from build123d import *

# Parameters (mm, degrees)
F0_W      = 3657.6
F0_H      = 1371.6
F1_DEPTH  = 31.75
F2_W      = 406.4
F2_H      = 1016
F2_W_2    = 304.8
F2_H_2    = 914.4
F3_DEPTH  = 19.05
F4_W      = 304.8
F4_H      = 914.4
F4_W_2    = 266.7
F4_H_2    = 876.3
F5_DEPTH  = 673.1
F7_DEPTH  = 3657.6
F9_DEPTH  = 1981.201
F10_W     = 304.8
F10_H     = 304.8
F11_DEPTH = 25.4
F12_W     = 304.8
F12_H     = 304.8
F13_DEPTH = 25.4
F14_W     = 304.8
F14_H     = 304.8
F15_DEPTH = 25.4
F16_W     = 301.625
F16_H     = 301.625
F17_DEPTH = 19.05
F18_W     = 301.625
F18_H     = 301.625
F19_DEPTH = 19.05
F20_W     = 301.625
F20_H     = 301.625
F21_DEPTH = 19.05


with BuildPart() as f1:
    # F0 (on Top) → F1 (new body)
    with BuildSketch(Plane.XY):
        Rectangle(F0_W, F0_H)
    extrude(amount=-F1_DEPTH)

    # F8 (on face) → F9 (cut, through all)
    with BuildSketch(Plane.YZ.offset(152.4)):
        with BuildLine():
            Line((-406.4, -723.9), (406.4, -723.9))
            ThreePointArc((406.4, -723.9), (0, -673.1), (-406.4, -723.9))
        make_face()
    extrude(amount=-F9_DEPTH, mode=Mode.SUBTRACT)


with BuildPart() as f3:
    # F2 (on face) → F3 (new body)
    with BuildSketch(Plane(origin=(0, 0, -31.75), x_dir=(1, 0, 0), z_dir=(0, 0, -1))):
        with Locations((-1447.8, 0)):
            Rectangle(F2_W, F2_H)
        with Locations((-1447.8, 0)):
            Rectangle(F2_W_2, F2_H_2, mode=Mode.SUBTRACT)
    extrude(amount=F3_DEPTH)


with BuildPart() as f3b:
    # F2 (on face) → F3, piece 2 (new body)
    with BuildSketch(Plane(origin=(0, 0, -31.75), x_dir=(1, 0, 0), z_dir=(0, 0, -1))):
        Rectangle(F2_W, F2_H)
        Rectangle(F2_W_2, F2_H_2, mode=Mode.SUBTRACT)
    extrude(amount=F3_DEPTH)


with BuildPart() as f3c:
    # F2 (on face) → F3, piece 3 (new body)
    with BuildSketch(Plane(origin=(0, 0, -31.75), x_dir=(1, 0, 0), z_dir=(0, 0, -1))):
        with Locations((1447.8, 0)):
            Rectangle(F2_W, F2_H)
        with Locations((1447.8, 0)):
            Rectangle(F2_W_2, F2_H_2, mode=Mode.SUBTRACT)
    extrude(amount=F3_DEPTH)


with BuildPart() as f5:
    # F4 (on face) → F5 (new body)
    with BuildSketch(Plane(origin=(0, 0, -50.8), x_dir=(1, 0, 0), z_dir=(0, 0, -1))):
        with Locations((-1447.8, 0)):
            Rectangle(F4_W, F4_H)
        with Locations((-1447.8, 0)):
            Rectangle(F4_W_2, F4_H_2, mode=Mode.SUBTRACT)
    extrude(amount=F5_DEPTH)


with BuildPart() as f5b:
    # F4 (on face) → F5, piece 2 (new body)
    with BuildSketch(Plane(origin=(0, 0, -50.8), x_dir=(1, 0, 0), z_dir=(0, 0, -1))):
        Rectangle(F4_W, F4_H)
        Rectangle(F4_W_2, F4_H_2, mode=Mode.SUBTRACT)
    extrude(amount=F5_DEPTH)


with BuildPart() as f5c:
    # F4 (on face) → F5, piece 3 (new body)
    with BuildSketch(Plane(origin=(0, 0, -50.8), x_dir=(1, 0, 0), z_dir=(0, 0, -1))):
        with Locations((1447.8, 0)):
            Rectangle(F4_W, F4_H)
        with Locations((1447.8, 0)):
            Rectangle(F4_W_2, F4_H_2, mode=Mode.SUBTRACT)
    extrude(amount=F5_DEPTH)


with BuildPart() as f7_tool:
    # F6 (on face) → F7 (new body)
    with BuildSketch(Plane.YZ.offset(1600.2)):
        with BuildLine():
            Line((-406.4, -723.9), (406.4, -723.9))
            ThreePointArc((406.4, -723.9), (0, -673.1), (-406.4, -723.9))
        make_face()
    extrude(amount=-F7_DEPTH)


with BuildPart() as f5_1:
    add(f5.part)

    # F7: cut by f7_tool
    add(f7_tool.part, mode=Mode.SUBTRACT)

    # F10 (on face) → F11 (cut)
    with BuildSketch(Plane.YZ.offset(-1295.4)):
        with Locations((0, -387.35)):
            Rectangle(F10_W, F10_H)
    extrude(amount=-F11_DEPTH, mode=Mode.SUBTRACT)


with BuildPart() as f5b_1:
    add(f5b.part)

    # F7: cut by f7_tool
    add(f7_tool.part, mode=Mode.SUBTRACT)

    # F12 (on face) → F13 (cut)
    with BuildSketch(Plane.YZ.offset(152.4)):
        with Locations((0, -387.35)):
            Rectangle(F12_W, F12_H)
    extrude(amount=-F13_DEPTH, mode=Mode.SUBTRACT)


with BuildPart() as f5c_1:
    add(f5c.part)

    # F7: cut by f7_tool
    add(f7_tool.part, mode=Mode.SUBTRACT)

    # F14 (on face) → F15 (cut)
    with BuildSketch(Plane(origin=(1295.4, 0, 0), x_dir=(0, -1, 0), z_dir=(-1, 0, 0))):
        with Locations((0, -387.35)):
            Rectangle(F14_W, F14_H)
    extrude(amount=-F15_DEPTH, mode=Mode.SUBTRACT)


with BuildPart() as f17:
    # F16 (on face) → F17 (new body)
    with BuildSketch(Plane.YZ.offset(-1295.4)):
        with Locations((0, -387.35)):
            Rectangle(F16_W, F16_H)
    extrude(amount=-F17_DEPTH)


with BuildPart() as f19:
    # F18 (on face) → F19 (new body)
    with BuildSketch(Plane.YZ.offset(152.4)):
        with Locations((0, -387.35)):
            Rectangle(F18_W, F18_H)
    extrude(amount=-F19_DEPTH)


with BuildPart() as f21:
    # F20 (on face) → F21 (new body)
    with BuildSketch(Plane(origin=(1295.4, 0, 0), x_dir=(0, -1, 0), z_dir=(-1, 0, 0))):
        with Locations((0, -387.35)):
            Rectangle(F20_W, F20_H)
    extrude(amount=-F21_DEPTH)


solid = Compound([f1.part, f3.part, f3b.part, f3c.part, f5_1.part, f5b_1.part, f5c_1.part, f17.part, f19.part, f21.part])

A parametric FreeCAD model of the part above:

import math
import FreeCAD as App
import Part
import Sketcher
from FreeCAD import Vector
Q = App.Units.Quantity


def add_polygon(sketch, points):
    """Adds a closed chain of lines whose ends are joined by coincident constraints."""
    first, n = sketch.GeometryCount, len(points)
    for a, b in zip(points, points[1:] + points[:1]):
        sketch.addGeometry(Part.LineSegment(App.Vector(*a, 0), App.Vector(*b, 0)), False)
    for i in range(n):
        sketch.addConstraint(Sketcher.Constraint("Coincident", first + i, 2, first + (i + 1) % n, 1))

doc = App.newDocument("Part")
params = doc.addObject("Spreadsheet::Sheet", "Params")
for row, (alias, value) in enumerate([
    ("sketch1_width", "144 in"),
    ("sketch1_height", "54 in"),
    ("pad1_length", "1.25 in"),
    ("sketch2_radius", "65 in"),
    ("sketch2_width", "32 in"),
    ("sketch3_width", "16 in"),
    ("sketch3_width2", "12 in"),
    ("sketch3_height", "40 in"),
    ("sketch3_height2", "36 in"),
    ("pad2_length", "0.75 in"),
    ("sketch4_width", "16 in"),
    ("sketch4_width2", "12 in"),
    ("sketch4_height", "40 in"),
    ("sketch4_height2", "36 in"),
    ("pad3_length", "0.75 in"),
    ("sketch5_width", "16 in"),
    ("sketch5_width2", "12 in"),
    ("sketch5_height", "40 in"),
    ("sketch5_height2", "36 in"),
    ("pad4_length", "0.75 in"),
    ("sketch6_width", "12 in"),
    ("sketch6_height", "36 in"),
    ("sketch6_width2", "10.5 in"),
    ("sketch6_height2", "34.5 in"),
    ("pad5_length", "26.5 in"),
    ("sketch7_width", "12 in"),
    ("sketch7_height", "36 in"),
    ("sketch7_width2", "10.5 in"),
    ("sketch7_height2", "34.5 in"),
    ("pad6_length", "26.5 in"),
    ("sketch8_width", "12 in"),
    ("sketch8_height", "36 in"),
    ("sketch8_width2", "10.5 in"),
    ("sketch8_height2", "34.5 in"),
    ("pad7_length", "26.5 in"),
    ("sketch9_radius", "65 in"),
    ("sketch9_width", "32 in"),
    ("pad8_length", "144 in"),
    ("sketch10_width", "12 in"),
    ("pocket2_length", "1 in"),
    ("sketch11_width", "12 in"),
    ("pocket3_length", "1 in"),
    ("sketch12_width", "12 in"),
    ("pocket4_length", "1 in"),
    ("sketch13_width", "11.875 in"),
    ("pad9_length", "0.75 in"),
    ("sketch14_width", "11.875 in"),
    ("pad10_length", "0.75 in"),
    ("sketch15_width", "11.875 in"),
    ("pad11_length", "0.75 in"),
], start=1):
    params.set(f"A{row}", alias)
    params.set(f"B{row}", "=" + value)
    params.setAlias(f"B{row}", alias)

body = doc.addObject("PartDesign::Body", "Body")

sketch1 = doc.addObject("Sketcher::SketchObject", "Sketch")
body.addObject(sketch1)
sketch1.AttachmentSupport = (doc.XY_Plane, [""])
sketch1.MapMode = "FlatFace"
add_polygon(sketch1, [(-1829, 686), (-1829, -686), (1829, -686), (1829, 686)])
sketch1.addConstraint(Sketcher.Constraint("Vertical", 0))
sketch1.addConstraint(Sketcher.Constraint("Horizontal", 1))
sketch1.addConstraint(Sketcher.Constraint("Vertical", 2))
sketch1.addConstraint(Sketcher.Constraint("Horizontal", 3))
sketch1.addConstraint(Sketcher.Constraint("Symmetric", 0, 2, 2, 2, -1, 1))
sketch1.addConstraint(Sketcher.Constraint("DistanceX", 1, 1, 1, 2, Q("144 in")))
sketch1.addConstraint(Sketcher.Constraint("DistanceY", 0, 2, 0, 1, Q("54 in")))
sketch1.setExpression("Constraints[9]", "Params.sketch1_width")
sketch1.setExpression("Constraints[10]", "Params.sketch1_height")
pad1 = doc.addObject("PartDesign::Pad", "Pad")
body.addObject(pad1)
pad1.Profile = sketch1
pad1.setExpression("Length", "Params.pad1_length")
pad1.Reversed = True

sketch2 = doc.addObject("Sketcher::SketchObject", "Sketch001")
body.addObject(sketch2)
sketch2.AttachmentSupport = (doc.YZ_Plane, [""])
sketch2.MapMode = "FlatFace"
sketch2.AttachmentOffset = App.Placement(Vector(0, 0, 6 * 25.4), App.Rotation())
sketch2.addGeometry(Part.LineSegment(Vector(-406, -724, 0), Vector(406, -724, 0)), False)
sketch2.addGeometry(Part.ArcOfCircle(Part.Circle(Vector(0, -2324, 0), Vector(0, 0, 1), 1651), math.radians(76), math.radians(104)), False)
sketch2.addConstraint(Sketcher.Constraint("Coincident", 0, 1, 1, 2))
sketch2.addConstraint(Sketcher.Constraint("Coincident", 1, 1, 0, 2))
sketch2.addConstraint(Sketcher.Constraint("Horizontal", 0))
sketch2.addConstraint(Sketcher.Constraint("PointOnObject", 1, 3, -2))
sketch2.addConstraint(Sketcher.Constraint("Radius", 1, Q("65 in")))
sketch2.addConstraint(Sketcher.Constraint("DistanceX", 0, 1, 0, 2, Q("32 in")))
sketch2.addConstraint(Sketcher.Constraint("DistanceY", 1, 3, -1, 1, Q("91.5 in")))
sketch2.setExpression("Constraints[4]", "Params.sketch2_radius")
sketch2.setExpression("Constraints[5]", "Params.sketch2_width")
pocket1 = doc.addObject("PartDesign::Pocket", "Pocket")
body.addObject(pocket1)
pocket1.Profile = sketch2
pocket1.Type = "ThroughAll"
body2 = doc.addObject("PartDesign::Body", "Body001")

sketch3 = doc.addObject("Sketcher::SketchObject", "Sketch002")
body2.addObject(sketch3)
sketch3.AttachmentSupport = (doc.getObject("XY_Plane001"), [""])
sketch3.MapMode = "FlatFace"
sketch3.AttachmentOffset = App.Placement(Vector(0, 0, -1.25 * 25.4), App.Rotation())
add_polygon(sketch3, [(-1651, -508), (-1651, 508), (-1245, 508), (-1245, -508)])
add_polygon(sketch3, [(-1295, 457), (-1600, 457), (-1600, -457), (-1295, -457)])
sketch3.addConstraint(Sketcher.Constraint("Vertical", 0))
sketch3.addConstraint(Sketcher.Constraint("Horizontal", 1))
sketch3.addConstraint(Sketcher.Constraint("Vertical", 2))
sketch3.addConstraint(Sketcher.Constraint("Horizontal", 3))
sketch3.addConstraint(Sketcher.Constraint("Horizontal", 4))
sketch3.addConstraint(Sketcher.Constraint("Vertical", 5))
sketch3.addConstraint(Sketcher.Constraint("Horizontal", 6))
sketch3.addConstraint(Sketcher.Constraint("Vertical", 7))
sketch3.addConstraint(Sketcher.Constraint("DistanceX", 1, 1, 1, 2, Q("16 in")))
sketch3.addConstraint(Sketcher.Constraint("DistanceX", 4, 2, 4, 1, Q("12 in")))
sketch3.addConstraint(Sketcher.Constraint("DistanceY", 0, 1, 0, 2, Q("40 in")))
sketch3.addConstraint(Sketcher.Constraint("DistanceY", 5, 2, 5, 1, Q("36 in")))
sketch3.addConstraint(Sketcher.Constraint("DistanceX", 0, 2, -1, 1, Q("65 in")))
sketch3.addConstraint(Sketcher.Constraint("DistanceY", -1, 1, 0, 2, Q("20 in")))
sketch3.addConstraint(Sketcher.Constraint("DistanceX", 4, 2, -1, 1, Q("63 in")))
sketch3.addConstraint(Sketcher.Constraint("DistanceY", -1, 1, 4, 2, Q("18 in")))
sketch3.setExpression("Constraints[16]", "Params.sketch3_width")
sketch3.setExpression("Constraints[17]", "Params.sketch3_width2")
sketch3.setExpression("Constraints[18]", "Params.sketch3_height")
sketch3.setExpression("Constraints[19]", "Params.sketch3_height2")
pad2 = doc.addObject("PartDesign::Pad", "Pad001")
body2.addObject(pad2)
pad2.Profile = sketch3
pad2.setExpression("Length", "Params.pad2_length")
pad2.Reversed = True
body3 = doc.addObject("PartDesign::Body", "Body002")

sketch4 = doc.addObject("Sketcher::SketchObject", "Sketch003")
body3.addObject(sketch4)
sketch4.AttachmentSupport = (doc.getObject("XY_Plane002"), [""])
sketch4.MapMode = "FlatFace"
sketch4.AttachmentOffset = App.Placement(Vector(0, 0, -1.25 * 25.4), App.Rotation())
add_polygon(sketch4, [(-203, -508), (-203, 508), (203, 508), (203, -508)])
add_polygon(sketch4, [(152, 457), (-152, 457), (-152, -457), (152, -457)])
sketch4.addConstraint(Sketcher.Constraint("Vertical", 0))
sketch4.addConstraint(Sketcher.Constraint("Horizontal", 1))
sketch4.addConstraint(Sketcher.Constraint("Vertical", 2))
sketch4.addConstraint(Sketcher.Constraint("Horizontal", 3))
sketch4.addConstraint(Sketcher.Constraint("Horizontal", 4))
sketch4.addConstraint(Sketcher.Constraint("Vertical", 5))
sketch4.addConstraint(Sketcher.Constraint("Horizontal", 6))
sketch4.addConstraint(Sketcher.Constraint("Vertical", 7))
sketch4.addConstraint(Sketcher.Constraint("Symmetric", 0, 2, 2, 2, -1, 1))
sketch4.addConstraint(Sketcher.Constraint("Symmetric", 4, 2, 6, 2, -1, 1))
sketch4.addConstraint(Sketcher.Constraint("DistanceX", 1, 1, 1, 2, Q("16 in")))
sketch4.addConstraint(Sketcher.Constraint("DistanceX", 4, 2, 4, 1, Q("12 in")))
sketch4.addConstraint(Sketcher.Constraint("DistanceY", 0, 1, 0, 2, Q("40 in")))
sketch4.addConstraint(Sketcher.Constraint("DistanceY", 5, 2, 5, 1, Q("36 in")))
sketch4.setExpression("Constraints[18]", "Params.sketch4_width")
sketch4.setExpression("Constraints[19]", "Params.sketch4_width2")
sketch4.setExpression("Constraints[20]", "Params.sketch4_height")
sketch4.setExpression("Constraints[21]", "Params.sketch4_height2")
pad3 = doc.addObject("PartDesign::Pad", "Pad002")
body3.addObject(pad3)
pad3.Profile = sketch4
pad3.setExpression("Length", "Params.pad3_length")
pad3.Reversed = True
body4 = doc.addObject("PartDesign::Body", "Body003")

sketch5 = doc.addObject("Sketcher::SketchObject", "Sketch004")
body4.addObject(sketch5)
sketch5.AttachmentSupport = (doc.getObject("XY_Plane003"), [""])
sketch5.MapMode = "FlatFace"
sketch5.AttachmentOffset = App.Placement(Vector(0, 0, -1.25 * 25.4), App.Rotation())
add_polygon(sketch5, [(1245, -508), (1245, 508), (1651, 508), (1651, -508)])
add_polygon(sketch5, [(1600, 457), (1295, 457), (1295, -457), (1600, -457)])
sketch5.addConstraint(Sketcher.Constraint("Vertical", 0))
sketch5.addConstraint(Sketcher.Constraint("Horizontal", 1))
sketch5.addConstraint(Sketcher.Constraint("Vertical", 2))
sketch5.addConstraint(Sketcher.Constraint("Horizontal", 3))
sketch5.addConstraint(Sketcher.Constraint("Horizontal", 4))
sketch5.addConstraint(Sketcher.Constraint("Vertical", 5))
sketch5.addConstraint(Sketcher.Constraint("Horizontal", 6))
sketch5.addConstraint(Sketcher.Constraint("Vertical", 7))
sketch5.addConstraint(Sketcher.Constraint("DistanceX", 1, 1, 1, 2, Q("16 in")))
sketch5.addConstraint(Sketcher.Constraint("DistanceX", 4, 2, 4, 1, Q("12 in")))
sketch5.addConstraint(Sketcher.Constraint("DistanceY", 0, 1, 0, 2, Q("40 in")))
sketch5.addConstraint(Sketcher.Constraint("DistanceY", 5, 2, 5, 1, Q("36 in")))
sketch5.addConstraint(Sketcher.Constraint("DistanceX", -1, 1, 0, 2, Q("49 in")))
sketch5.addConstraint(Sketcher.Constraint("DistanceY", -1, 1, 0, 2, Q("20 in")))
sketch5.addConstraint(Sketcher.Constraint("DistanceX", -1, 1, 4, 2, Q("51 in")))
sketch5.addConstraint(Sketcher.Constraint("DistanceY", -1, 1, 4, 2, Q("18 in")))
sketch5.setExpression("Constraints[16]", "Params.sketch5_width")
sketch5.setExpression("Constraints[17]", "Params.sketch5_width2")
sketch5.setExpression("Constraints[18]", "Params.sketch5_height")
sketch5.setExpression("Constraints[19]", "Params.sketch5_height2")
pad4 = doc.addObject("PartDesign::Pad", "Pad003")
body4.addObject(pad4)
pad4.Profile = sketch5
pad4.setExpression("Length", "Params.pad4_length")
pad4.Reversed = True
body5 = doc.addObject("PartDesign::Body", "Body004")

sketch6 = doc.addObject("Sketcher::SketchObject", "Sketch005")
body5.addObject(sketch6)
sketch6.AttachmentSupport = (doc.getObject("XY_Plane004"), [""])
sketch6.MapMode = "FlatFace"
sketch6.AttachmentOffset = App.Placement(Vector(0, 0, -2 * 25.4), App.Rotation())
add_polygon(sketch6, [(-1600, -457), (-1600, 457), (-1295, 457), (-1295, -457)])
add_polygon(sketch6, [(-1314, 438), (-1581, 438), (-1581, -438), (-1314, -438)])
sketch6.addConstraint(Sketcher.Constraint("Vertical", 0))
sketch6.addConstraint(Sketcher.Constraint("Horizontal", 1))
sketch6.addConstraint(Sketcher.Constraint("Vertical", 2))
sketch6.addConstraint(Sketcher.Constraint("Horizontal", 3))
sketch6.addConstraint(Sketcher.Constraint("Horizontal", 4))
sketch6.addConstraint(Sketcher.Constraint("Vertical", 5))
sketch6.addConstraint(Sketcher.Constraint("Horizontal", 6))
sketch6.addConstraint(Sketcher.Constraint("Vertical", 7))
sketch6.addConstraint(Sketcher.Constraint("DistanceX", 1, 1, 1, 2, Q("12 in")))
sketch6.addConstraint(Sketcher.Constraint("DistanceY", 0, 1, 0, 2, Q("36 in")))
sketch6.addConstraint(Sketcher.Constraint("DistanceX", 4, 2, 4, 1, Q("10.5 in")))
sketch6.addConstraint(Sketcher.Constraint("DistanceY", 5, 2, 5, 1, Q("34.5 in")))
sketch6.addConstraint(Sketcher.Constraint("DistanceX", 0, 2, -1, 1, Q("63 in")))
sketch6.addConstraint(Sketcher.Constraint("DistanceY", -1, 1, 0, 2, Q("18 in")))
sketch6.addConstraint(Sketcher.Constraint("DistanceX", 4, 2, -1, 1, Q("62.25 in")))
sketch6.addConstraint(Sketcher.Constraint("DistanceY", -1, 1, 4, 2, Q("17.25 in")))
sketch6.setExpression("Constraints[16]", "Params.sketch6_width")
sketch6.setExpression("Constraints[17]", "Params.sketch6_height")
sketch6.setExpression("Constraints[18]", "Params.sketch6_width2")
sketch6.setExpression("Constraints[19]", "Params.sketch6_height2")
pad5 = doc.addObject("PartDesign::Pad", "Pad004")
body5.addObject(pad5)
pad5.Profile = sketch6
pad5.setExpression("Length", "Params.pad5_length")
pad5.Reversed = True
body6 = doc.addObject("PartDesign::Body", "Body005")

sketch7 = doc.addObject("Sketcher::SketchObject", "Sketch006")
body6.addObject(sketch7)
sketch7.AttachmentSupport = (doc.getObject("XY_Plane005"), [""])
sketch7.MapMode = "FlatFace"
sketch7.AttachmentOffset = App.Placement(Vector(0, 0, -2 * 25.4), App.Rotation())
add_polygon(sketch7, [(-152, -457), (-152, 457), (152, 457), (152, -457)])
add_polygon(sketch7, [(133, 438), (-133, 438), (-133, -438), (133, -438)])
sketch7.addConstraint(Sketcher.Constraint("Vertical", 0))
sketch7.addConstraint(Sketcher.Constraint("Horizontal", 1))
sketch7.addConstraint(Sketcher.Constraint("Vertical", 2))
sketch7.addConstraint(Sketcher.Constraint("Horizontal", 3))
sketch7.addConstraint(Sketcher.Constraint("Horizontal", 4))
sketch7.addConstraint(Sketcher.Constraint("Vertical", 5))
sketch7.addConstraint(Sketcher.Constraint("Horizontal", 6))
sketch7.addConstraint(Sketcher.Constraint("Vertical", 7))
sketch7.addConstraint(Sketcher.Constraint("Symmetric", 0, 2, 2, 2, -1, 1))
sketch7.addConstraint(Sketcher.Constraint("Symmetric", 4, 2, 6, 2, -1, 1))
sketch7.addConstraint(Sketcher.Constraint("DistanceX", 1, 1, 1, 2, Q("12 in")))
sketch7.addConstraint(Sketcher.Constraint("DistanceY", 0, 1, 0, 2, Q("36 in")))
sketch7.addConstraint(Sketcher.Constraint("DistanceX", 4, 2, 4, 1, Q("10.5 in")))
sketch7.addConstraint(Sketcher.Constraint("DistanceY", 5, 2, 5, 1, Q("34.5 in")))
sketch7.setExpression("Constraints[18]", "Params.sketch7_width")
sketch7.setExpression("Constraints[19]", "Params.sketch7_height")
sketch7.setExpression("Constraints[20]", "Params.sketch7_width2")
sketch7.setExpression("Constraints[21]", "Params.sketch7_height2")
pad6 = doc.addObject("PartDesign::Pad", "Pad005")
body6.addObject(pad6)
pad6.Profile = sketch7
pad6.setExpression("Length", "Params.pad6_length")
pad6.Reversed = True
body7 = doc.addObject("PartDesign::Body", "Body006")

sketch8 = doc.addObject("Sketcher::SketchObject", "Sketch007")
body7.addObject(sketch8)
sketch8.AttachmentSupport = (doc.getObject("XY_Plane006"), [""])
sketch8.MapMode = "FlatFace"
sketch8.AttachmentOffset = App.Placement(Vector(0, 0, -2 * 25.4), App.Rotation())
add_polygon(sketch8, [(1295, -457), (1295, 457), (1600, 457), (1600, -457)])
add_polygon(sketch8, [(1581, 438), (1314, 438), (1314, -438), (1581, -438)])
sketch8.addConstraint(Sketcher.Constraint("Vertical", 0))
sketch8.addConstraint(Sketcher.Constraint("Horizontal", 1))
sketch8.addConstraint(Sketcher.Constraint("Vertical", 2))
sketch8.addConstraint(Sketcher.Constraint("Horizontal", 3))
sketch8.addConstraint(Sketcher.Constraint("Horizontal", 4))
sketch8.addConstraint(Sketcher.Constraint("Vertical", 5))
sketch8.addConstraint(Sketcher.Constraint("Horizontal", 6))
sketch8.addConstraint(Sketcher.Constraint("Vertical", 7))
sketch8.addConstraint(Sketcher.Constraint("DistanceX", 1, 1, 1, 2, Q("12 in")))
sketch8.addConstraint(Sketcher.Constraint("DistanceY", 0, 1, 0, 2, Q("36 in")))
sketch8.addConstraint(Sketcher.Constraint("DistanceX", 4, 2, 4, 1, Q("10.5 in")))
sketch8.addConstraint(Sketcher.Constraint("DistanceY", 5, 2, 5, 1, Q("34.5 in")))
sketch8.addConstraint(Sketcher.Constraint("DistanceX", -1, 1, 0, 2, Q("51 in")))
sketch8.addConstraint(Sketcher.Constraint("DistanceY", -1, 1, 0, 2, Q("18 in")))
sketch8.addConstraint(Sketcher.Constraint("DistanceX", -1, 1, 4, 2, Q("51.75 in")))
sketch8.addConstraint(Sketcher.Constraint("DistanceY", -1, 1, 4, 2, Q("17.25 in")))
sketch8.setExpression("Constraints[16]", "Params.sketch8_width")
sketch8.setExpression("Constraints[17]", "Params.sketch8_height")
sketch8.setExpression("Constraints[18]", "Params.sketch8_width2")
sketch8.setExpression("Constraints[19]", "Params.sketch8_height2")
pad7 = doc.addObject("PartDesign::Pad", "Pad006")
body7.addObject(pad7)
pad7.Profile = sketch8
pad7.setExpression("Length", "Params.pad7_length")
pad7.Reversed = True
body8 = doc.addObject("PartDesign::Body", "Body007")

sketch9 = doc.addObject("Sketcher::SketchObject", "Sketch008")
body8.addObject(sketch9)
sketch9.AttachmentSupport = (doc.getObject("YZ_Plane007"), [""])
sketch9.MapMode = "FlatFace"
sketch9.AttachmentOffset = App.Placement(Vector(0, 0, 63 * 25.4), App.Rotation())
sketch9.addGeometry(Part.LineSegment(Vector(-406, -724, 0), Vector(406, -724, 0)), False)
sketch9.addGeometry(Part.ArcOfCircle(Part.Circle(Vector(0, -2324, 0), Vector(0, 0, 1), 1651), math.radians(76), math.radians(104)), False)
sketch9.addConstraint(Sketcher.Constraint("Coincident", 0, 1, 1, 2))
sketch9.addConstraint(Sketcher.Constraint("Coincident", 1, 1, 0, 2))
sketch9.addConstraint(Sketcher.Constraint("Horizontal", 0))
sketch9.addConstraint(Sketcher.Constraint("PointOnObject", 1, 3, -2))
sketch9.addConstraint(Sketcher.Constraint("Radius", 1, Q("65 in")))
sketch9.addConstraint(Sketcher.Constraint("DistanceX", 0, 1, 0, 2, Q("32 in")))
sketch9.addConstraint(Sketcher.Constraint("DistanceY", 1, 3, -1, 1, Q("91.5 in")))
sketch9.setExpression("Constraints[4]", "Params.sketch9_radius")
sketch9.setExpression("Constraints[5]", "Params.sketch9_width")
pad8 = doc.addObject("PartDesign::Pad", "Pad007")
body8.addObject(pad8)
pad8.Profile = sketch9
pad8.setExpression("Length", "Params.pad8_length")
pad8.Reversed = True
doc.recompute()

body9 = doc.addObject("PartDesign::Body", "Body008")
body9.BaseFeature = body8
boolean = doc.addObject("PartDesign::Boolean", "Boolean")
body5.addObject(boolean)
boolean.Type = "Cut"
boolean.addObjects([body9])
doc.recompute()

sketch10 = doc.addObject("Sketcher::SketchObject", "Sketch009")
body5.addObject(sketch10)
sketch10.AttachmentSupport = (doc.getObject("YZ_Plane004"), [""])
sketch10.MapMode = "FlatFace"
sketch10.AttachmentOffset = App.Placement(Vector(0, 0, -51 * 25.4), App.Rotation())
add_polygon(sketch10, [(-152, -235), (-152, -540), (152, -540), (152, -235)])
sketch10.addConstraint(Sketcher.Constraint("Vertical", 0))
sketch10.addConstraint(Sketcher.Constraint("Horizontal", 1))
sketch10.addConstraint(Sketcher.Constraint("Vertical", 2))
sketch10.addConstraint(Sketcher.Constraint("Horizontal", 3))
sketch10.addConstraint(Sketcher.Constraint("Equal", 3, 0))
sketch10.addConstraint(Sketcher.Constraint("DistanceX", 1, 1, 1, 2, Q("12 in")))
sketch10.addConstraint(Sketcher.Constraint("DistanceX", 0, 2, -1, 1, Q("6 in")))
sketch10.addConstraint(Sketcher.Constraint("DistanceY", 0, 2, -1, 1, Q("21.25 in")))
sketch10.setExpression("Constraints[9]", "Params.sketch10_width")
pocket2 = doc.addObject("PartDesign::Pocket", "Pocket001")
body5.addObject(pocket2)
pocket2.Profile = sketch10
pocket2.setExpression("Length", "Params.pocket2_length")
doc.recompute()

body10 = doc.addObject("PartDesign::Body", "Body009")
body10.BaseFeature = body8
boolean2 = doc.addObject("PartDesign::Boolean", "Boolean001")
body6.addObject(boolean2)
boolean2.Type = "Cut"
boolean2.addObjects([body10])
doc.recompute()

sketch11 = doc.addObject("Sketcher::SketchObject", "Sketch010")
body6.addObject(sketch11)
sketch11.AttachmentSupport = (doc.getObject("YZ_Plane005"), [""])
sketch11.MapMode = "FlatFace"
sketch11.AttachmentOffset = App.Placement(Vector(0, 0, 6 * 25.4), App.Rotation())
add_polygon(sketch11, [(-152, -235), (-152, -540), (152, -540), (152, -235)])
sketch11.addConstraint(Sketcher.Constraint("Vertical", 0))
sketch11.addConstraint(Sketcher.Constraint("Horizontal", 1))
sketch11.addConstraint(Sketcher.Constraint("Vertical", 2))
sketch11.addConstraint(Sketcher.Constraint("Horizontal", 3))
sketch11.addConstraint(Sketcher.Constraint("Equal", 3, 0))
sketch11.addConstraint(Sketcher.Constraint("DistanceX", 1, 1, 1, 2, Q("12 in")))
sketch11.addConstraint(Sketcher.Constraint("DistanceX", 0, 2, -1, 1, Q("6 in")))
sketch11.addConstraint(Sketcher.Constraint("DistanceY", 0, 2, -1, 1, Q("21.25 in")))
sketch11.setExpression("Constraints[9]", "Params.sketch11_width")
pocket3 = doc.addObject("PartDesign::Pocket", "Pocket002")
body6.addObject(pocket3)
pocket3.Profile = sketch11
pocket3.setExpression("Length", "Params.pocket3_length")
doc.recompute()

boolean3 = doc.addObject("PartDesign::Boolean", "Boolean002")
body7.addObject(boolean3)
boolean3.Type = "Cut"
boolean3.addObjects([body8])

sketch12 = doc.addObject("Sketcher::SketchObject", "Sketch011")
body7.addObject(sketch12)
sketch12.AttachmentSupport = (doc.getObject("YZ_Plane006"), [""])
sketch12.MapMode = "FlatFace"
sketch12.AttachmentOffset = App.Placement(Vector(0, 0, 51 * 25.4), App.Rotation())
add_polygon(sketch12, [(152, -235), (152, -540), (-152, -540), (-152, -235)])
sketch12.addConstraint(Sketcher.Constraint("Vertical", 0))
sketch12.addConstraint(Sketcher.Constraint("Horizontal", 1))
sketch12.addConstraint(Sketcher.Constraint("Vertical", 2))
sketch12.addConstraint(Sketcher.Constraint("Horizontal", 3))
sketch12.addConstraint(Sketcher.Constraint("Equal", 3, 0))
sketch12.addConstraint(Sketcher.Constraint("DistanceX", 1, 2, 1, 1, Q("12 in")))
sketch12.addConstraint(Sketcher.Constraint("DistanceX", -1, 1, 0, 2, Q("6 in")))
sketch12.addConstraint(Sketcher.Constraint("DistanceY", 0, 2, -1, 1, Q("21.25 in")))
sketch12.setExpression("Constraints[9]", "Params.sketch12_width")
pocket4 = doc.addObject("PartDesign::Pocket", "Pocket003")
body7.addObject(pocket4)
pocket4.Profile = sketch12
pocket4.setExpression("Length", "Params.pocket4_length")
pocket4.Reversed = True
body11 = doc.addObject("PartDesign::Body", "Body010")

sketch13 = doc.addObject("Sketcher::SketchObject", "Sketch012")
body11.addObject(sketch13)
sketch13.AttachmentSupport = (doc.getObject("YZ_Plane010"), [""])
sketch13.MapMode = "FlatFace"
sketch13.AttachmentOffset = App.Placement(Vector(0, 0, -51 * 25.4), App.Rotation())
add_polygon(sketch13, [(-151, -237), (-151, -538), (151, -538), (151, -237)])
sketch13.addConstraint(Sketcher.Constraint("Vertical", 0))
sketch13.addConstraint(Sketcher.Constraint("Horizontal", 1))
sketch13.addConstraint(Sketcher.Constraint("Vertical", 2))
sketch13.addConstraint(Sketcher.Constraint("Horizontal", 3))
sketch13.addConstraint(Sketcher.Constraint("Equal", 3, 0))
sketch13.addConstraint(Sketcher.Constraint("DistanceX", 1, 1, 1, 2, Q("11.875 in")))
sketch13.addConstraint(Sketcher.Constraint("DistanceX", 0, 2, -1, 1, Q("5.9375 in")))
sketch13.addConstraint(Sketcher.Constraint("DistanceY", 0, 2, -1, 1, Q("21.1875 in")))
sketch13.setExpression("Constraints[9]", "Params.sketch13_width")
pad9 = doc.addObject("PartDesign::Pad", "Pad008")
body11.addObject(pad9)
pad9.Profile = sketch13
pad9.setExpression("Length", "Params.pad9_length")
pad9.Reversed = True
body12 = doc.addObject("PartDesign::Body", "Body011")

sketch14 = doc.addObject("Sketcher::SketchObject", "Sketch013")
body12.addObject(sketch14)
sketch14.AttachmentSupport = (doc.getObject("YZ_Plane011"), [""])
sketch14.MapMode = "FlatFace"
sketch14.AttachmentOffset = App.Placement(Vector(0, 0, 6 * 25.4), App.Rotation())
add_polygon(sketch14, [(-151, -237), (-151, -538), (151, -538), (151, -237)])
sketch14.addConstraint(Sketcher.Constraint("Vertical", 0))
sketch14.addConstraint(Sketcher.Constraint("Horizontal", 1))
sketch14.addConstraint(Sketcher.Constraint("Vertical", 2))
sketch14.addConstraint(Sketcher.Constraint("Horizontal", 3))
sketch14.addConstraint(Sketcher.Constraint("Equal", 3, 0))
sketch14.addConstraint(Sketcher.Constraint("DistanceX", 1, 1, 1, 2, Q("11.875 in")))
sketch14.addConstraint(Sketcher.Constraint("DistanceX", 0, 2, -1, 1, Q("5.9375 in")))
sketch14.addConstraint(Sketcher.Constraint("DistanceY", 0, 2, -1, 1, Q("21.1875 in")))
sketch14.setExpression("Constraints[9]", "Params.sketch14_width")
pad10 = doc.addObject("PartDesign::Pad", "Pad009")
body12.addObject(pad10)
pad10.Profile = sketch14
pad10.setExpression("Length", "Params.pad10_length")
pad10.Reversed = True
body13 = doc.addObject("PartDesign::Body", "Body012")

sketch15 = doc.addObject("Sketcher::SketchObject", "Sketch014")
body13.addObject(sketch15)
sketch15.AttachmentSupport = (doc.getObject("YZ_Plane012"), [""])
sketch15.MapMode = "FlatFace"
sketch15.AttachmentOffset = App.Placement(Vector(0, 0, 51 * 25.4), App.Rotation())
add_polygon(sketch15, [(151, -237), (151, -538), (-151, -538), (-151, -237)])
sketch15.addConstraint(Sketcher.Constraint("Vertical", 0))
sketch15.addConstraint(Sketcher.Constraint("Horizontal", 1))
sketch15.addConstraint(Sketcher.Constraint("Vertical", 2))
sketch15.addConstraint(Sketcher.Constraint("Horizontal", 3))
sketch15.addConstraint(Sketcher.Constraint("Equal", 3, 0))
sketch15.addConstraint(Sketcher.Constraint("DistanceX", 1, 2, 1, 1, Q("11.875 in")))
sketch15.addConstraint(Sketcher.Constraint("DistanceX", -1, 1, 0, 2, Q("5.9375 in")))
sketch15.addConstraint(Sketcher.Constraint("DistanceY", 0, 2, -1, 1, Q("21.1875 in")))
sketch15.setExpression("Constraints[9]", "Params.sketch15_width")
pad11 = doc.addObject("PartDesign::Pad", "Pad010")
body13.addObject(pad11)
pad11.Profile = sketch15
pad11.setExpression("Length", "Params.pad11_length")

doc.recompute()
